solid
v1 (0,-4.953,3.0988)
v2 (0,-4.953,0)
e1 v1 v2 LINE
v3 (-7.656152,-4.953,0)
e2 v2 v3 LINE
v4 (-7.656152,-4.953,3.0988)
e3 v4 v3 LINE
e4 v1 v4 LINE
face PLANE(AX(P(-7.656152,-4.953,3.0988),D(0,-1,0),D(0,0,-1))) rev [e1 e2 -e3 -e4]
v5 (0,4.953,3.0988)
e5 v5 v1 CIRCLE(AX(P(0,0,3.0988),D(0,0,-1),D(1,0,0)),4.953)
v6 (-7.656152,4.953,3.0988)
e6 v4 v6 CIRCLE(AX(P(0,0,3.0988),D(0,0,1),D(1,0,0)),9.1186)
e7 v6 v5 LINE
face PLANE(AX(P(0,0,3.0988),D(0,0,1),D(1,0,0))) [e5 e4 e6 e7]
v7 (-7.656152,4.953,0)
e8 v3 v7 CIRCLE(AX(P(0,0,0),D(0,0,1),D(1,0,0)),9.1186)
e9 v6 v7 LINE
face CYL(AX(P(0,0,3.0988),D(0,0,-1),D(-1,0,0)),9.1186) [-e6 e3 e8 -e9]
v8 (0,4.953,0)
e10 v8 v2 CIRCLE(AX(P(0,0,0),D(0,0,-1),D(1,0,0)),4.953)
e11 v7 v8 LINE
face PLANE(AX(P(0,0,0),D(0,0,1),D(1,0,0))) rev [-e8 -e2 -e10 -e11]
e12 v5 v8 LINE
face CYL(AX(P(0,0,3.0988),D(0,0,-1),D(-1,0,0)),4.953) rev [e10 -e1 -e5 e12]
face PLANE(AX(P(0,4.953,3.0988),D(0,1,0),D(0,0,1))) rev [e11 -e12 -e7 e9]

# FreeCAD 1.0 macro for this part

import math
import FreeCAD as App
import Part
import Sketcher
from FreeCAD import Vector
Q = App.Units.Quantity

doc = App.newDocument("Part")
params = doc.addObject("Spreadsheet::Sheet", "Params")
for row, (alias, value) in enumerate([
    ("sketch1_radius", "0.195 in"),
    ("sketch1_radius2", "0.359 in"),
    ("pad1_length", "0.122 in"),
], start=1):
    params.set(f"A{row}", alias)
    params.set(f"B{row}", "=" + value)
    params.setAlias(f"B{row}", alias)

body = doc.addObject("PartDesign::Body", "Body")

# Sketch on XY plane
sketch1 = doc.addObject("Sketcher::SketchObject", "Sketch")
body.addObject(sketch1)
sketch1.AttachmentSupport = (doc.XY_Plane, [""])
sketch1.MapMode = "FlatFace"
sketch1.addGeometry([
    Part.LineSegment(Vector(-7.656152, 4.953, 0), Vector(0, 4.953, 0)),
    Part.ArcOfCircle(Part.Circle(Vector(0, 0, 0), Vector(0, 0, 1), 4.953), math.radians(-90), math.radians(90)),
    Part.LineSegment(Vector(0, -4.953, 0), Vector(-7.656152, -4.953, 0)),
    Part.ArcOfCircle(Part.Circle(Vector(0, 0, 0), Vector(0, 0, 1), 9.1186), math.radians(-147.099929), math.radians(147.099929)),
], False)
sketch1.addConstraint([
    Sketcher.Constraint("Tangent", 0, 2, 1, 2),
    Sketcher.Constraint("Tangent", 1, 1, 2, 1),
    Sketcher.Constraint("Coincident", 2, 2, 3, 1),
    Sketcher.Constraint("Coincident", 3, 2, 0, 1),
    Sketcher.Constraint("Horizontal", 0),
    Sketcher.Constraint("Horizontal", 2),
    Sketcher.Constraint("Coincident", 1, 3, -1, 1),
    Sketcher.Constraint("Coincident", 3, 3, -1, 1),
    Sketcher.Constraint("Radius", 1, Q("0.195 in")),
    Sketcher.Constraint("Radius", 3, Q("0.359 in")),
])
sketch1.setExpression("Constraints[8]", "Params.sketch1_radius")
sketch1.setExpression("Constraints[9]", "Params.sketch1_radius2")
pad1 = doc.addObject("PartDesign::Pad", "Pad")
body.addObject(pad1)
pad1.Profile = sketch1
pad1.setExpression("Length", "Params.pad1_length")

doc.recompute()
